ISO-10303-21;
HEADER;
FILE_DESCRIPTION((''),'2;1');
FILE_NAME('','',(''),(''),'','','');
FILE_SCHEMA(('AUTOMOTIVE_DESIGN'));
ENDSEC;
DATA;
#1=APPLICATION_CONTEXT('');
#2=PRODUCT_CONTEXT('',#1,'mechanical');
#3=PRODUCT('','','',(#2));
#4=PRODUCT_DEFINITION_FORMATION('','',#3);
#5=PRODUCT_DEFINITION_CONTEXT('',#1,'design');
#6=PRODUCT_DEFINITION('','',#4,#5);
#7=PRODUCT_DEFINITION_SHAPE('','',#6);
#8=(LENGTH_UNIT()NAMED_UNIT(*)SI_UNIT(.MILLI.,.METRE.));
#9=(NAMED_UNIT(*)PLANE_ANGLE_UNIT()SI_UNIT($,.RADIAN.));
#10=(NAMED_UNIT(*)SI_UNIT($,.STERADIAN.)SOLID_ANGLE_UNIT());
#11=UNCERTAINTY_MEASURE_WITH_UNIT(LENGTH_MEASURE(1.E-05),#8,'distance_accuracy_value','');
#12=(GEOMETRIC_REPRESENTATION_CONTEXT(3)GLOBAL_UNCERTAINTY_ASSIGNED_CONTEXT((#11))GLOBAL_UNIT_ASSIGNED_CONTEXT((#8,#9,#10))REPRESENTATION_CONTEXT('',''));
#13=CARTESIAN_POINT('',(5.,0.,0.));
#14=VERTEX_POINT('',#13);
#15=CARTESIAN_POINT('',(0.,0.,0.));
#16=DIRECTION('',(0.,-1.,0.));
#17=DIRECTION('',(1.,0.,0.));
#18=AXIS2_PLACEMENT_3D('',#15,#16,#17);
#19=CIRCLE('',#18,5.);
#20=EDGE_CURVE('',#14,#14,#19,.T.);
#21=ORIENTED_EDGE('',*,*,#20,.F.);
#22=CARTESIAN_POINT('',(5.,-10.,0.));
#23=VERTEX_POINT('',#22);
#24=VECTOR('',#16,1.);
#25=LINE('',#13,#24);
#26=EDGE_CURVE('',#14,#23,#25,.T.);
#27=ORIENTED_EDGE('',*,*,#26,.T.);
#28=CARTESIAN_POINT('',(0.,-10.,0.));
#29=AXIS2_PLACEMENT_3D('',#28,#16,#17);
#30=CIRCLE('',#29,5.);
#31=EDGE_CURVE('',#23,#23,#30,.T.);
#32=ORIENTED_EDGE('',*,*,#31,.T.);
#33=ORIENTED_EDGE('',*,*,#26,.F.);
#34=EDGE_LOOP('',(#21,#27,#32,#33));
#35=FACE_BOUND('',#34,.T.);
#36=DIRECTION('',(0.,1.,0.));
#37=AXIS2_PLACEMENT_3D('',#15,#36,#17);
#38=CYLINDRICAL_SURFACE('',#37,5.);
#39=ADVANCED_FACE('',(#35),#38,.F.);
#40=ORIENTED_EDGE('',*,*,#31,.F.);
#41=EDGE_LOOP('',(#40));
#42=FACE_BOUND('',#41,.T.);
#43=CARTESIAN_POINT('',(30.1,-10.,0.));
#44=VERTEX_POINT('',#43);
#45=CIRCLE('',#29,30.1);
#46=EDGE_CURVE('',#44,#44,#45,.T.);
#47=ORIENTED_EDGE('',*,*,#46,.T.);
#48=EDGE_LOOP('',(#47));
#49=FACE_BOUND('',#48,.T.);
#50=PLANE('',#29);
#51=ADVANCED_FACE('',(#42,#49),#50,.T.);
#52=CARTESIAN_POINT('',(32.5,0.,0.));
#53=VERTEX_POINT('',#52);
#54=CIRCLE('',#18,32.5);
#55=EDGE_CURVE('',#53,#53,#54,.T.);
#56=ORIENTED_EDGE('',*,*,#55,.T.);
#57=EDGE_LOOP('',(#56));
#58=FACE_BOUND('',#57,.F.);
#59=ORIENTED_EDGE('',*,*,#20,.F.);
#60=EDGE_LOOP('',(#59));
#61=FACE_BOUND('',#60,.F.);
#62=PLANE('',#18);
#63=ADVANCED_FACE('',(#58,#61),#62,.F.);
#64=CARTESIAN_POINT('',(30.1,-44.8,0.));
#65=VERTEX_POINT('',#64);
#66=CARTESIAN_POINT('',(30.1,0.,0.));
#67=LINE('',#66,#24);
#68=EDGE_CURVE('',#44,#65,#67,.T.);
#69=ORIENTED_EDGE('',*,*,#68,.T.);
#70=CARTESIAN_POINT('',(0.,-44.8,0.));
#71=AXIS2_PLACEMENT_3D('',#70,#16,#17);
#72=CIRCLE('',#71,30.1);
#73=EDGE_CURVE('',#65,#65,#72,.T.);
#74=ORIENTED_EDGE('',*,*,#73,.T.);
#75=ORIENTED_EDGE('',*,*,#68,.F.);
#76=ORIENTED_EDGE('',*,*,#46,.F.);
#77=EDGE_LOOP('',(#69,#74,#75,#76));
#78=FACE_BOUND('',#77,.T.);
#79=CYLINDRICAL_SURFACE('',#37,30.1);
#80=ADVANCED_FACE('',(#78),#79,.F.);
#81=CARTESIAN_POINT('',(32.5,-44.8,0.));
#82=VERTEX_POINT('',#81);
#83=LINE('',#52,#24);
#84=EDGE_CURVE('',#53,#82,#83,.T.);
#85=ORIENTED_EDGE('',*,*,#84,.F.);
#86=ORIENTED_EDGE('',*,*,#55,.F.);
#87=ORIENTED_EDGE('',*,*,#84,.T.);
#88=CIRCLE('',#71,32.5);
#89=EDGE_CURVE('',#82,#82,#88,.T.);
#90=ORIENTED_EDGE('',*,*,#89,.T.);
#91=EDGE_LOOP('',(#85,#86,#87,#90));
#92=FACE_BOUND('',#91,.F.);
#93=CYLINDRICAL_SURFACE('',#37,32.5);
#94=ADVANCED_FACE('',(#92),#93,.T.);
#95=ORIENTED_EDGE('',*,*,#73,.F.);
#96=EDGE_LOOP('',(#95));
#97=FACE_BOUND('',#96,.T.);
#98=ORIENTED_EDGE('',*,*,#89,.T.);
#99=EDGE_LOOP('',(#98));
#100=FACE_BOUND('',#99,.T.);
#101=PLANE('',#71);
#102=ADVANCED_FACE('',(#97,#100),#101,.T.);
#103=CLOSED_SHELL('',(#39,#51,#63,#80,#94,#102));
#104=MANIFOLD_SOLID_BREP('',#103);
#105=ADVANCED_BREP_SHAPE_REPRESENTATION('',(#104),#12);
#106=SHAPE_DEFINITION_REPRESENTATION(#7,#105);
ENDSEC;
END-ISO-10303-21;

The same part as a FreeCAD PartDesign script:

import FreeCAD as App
import Part
import Sketcher

V = App.Vector
Q = App.Units.Quantity

doc = App.newDocument("Part")
body = doc.addObject("PartDesign::Body", "Body")

# Sketch on XZ plane
sketch1 = body.newObject("Sketcher::SketchObject", "Sketch")
sketch1.AttachmentSupport = (doc.getObject("XZ_Plane"), [""])
sketch1.MapMode = "FlatFace"
sketch1.addGeometry([
    Part.Circle(V(0, 0, 0), V(0, 0, 1), 32),
    Part.Circle(V(0, 0, 0), V(0, 0, 1), 30),
], False)
sketch1.addConstraint([
    Sketcher.Constraint("Coincident", 0, 3, -1, 1),
    Sketcher.Constraint("Coincident", 1, 3, -1, 1),
    Sketcher.Constraint("Diameter", 0, Q("65 mm")),
    Sketcher.Constraint("Diameter", 1, Q("60.2 mm")),
])
pad1 = body.newObject("PartDesign::Pad", "Pad")
pad1.Profile = sketch1
pad1.Length = 44.8

# Sketch on XZ plane
sketch2 = body.newObject("Sketcher::SketchObject", "Sketch001")
sketch2.AttachmentSupport = (doc.getObject("XZ_Plane"), [""])
sketch2.MapMode = "FlatFace"
sketch2.addGeometry([
    Part.Circle(V(0, 0, 0), V(0, 0, 1), 30),
    Part.Circle(V(0, 0, 0), V(0, 0, 1), 5),
], False)
sketch2.addConstraint([
    Sketcher.Constraint("Coincident", 0, 3, -1, 1),
    Sketcher.Constraint("Coincident", 1, 3, -1, 1),
    Sketcher.Constraint("Diameter", 1, Q("10 mm")),
    Sketcher.Constraint("Diameter", 0, Q("60.2 mm")),
])
pad2 = body.newObject("PartDesign::Pad", "Pad001")
pad2.Profile = sketch2
pad2.Length = 10

doc.recompute()
